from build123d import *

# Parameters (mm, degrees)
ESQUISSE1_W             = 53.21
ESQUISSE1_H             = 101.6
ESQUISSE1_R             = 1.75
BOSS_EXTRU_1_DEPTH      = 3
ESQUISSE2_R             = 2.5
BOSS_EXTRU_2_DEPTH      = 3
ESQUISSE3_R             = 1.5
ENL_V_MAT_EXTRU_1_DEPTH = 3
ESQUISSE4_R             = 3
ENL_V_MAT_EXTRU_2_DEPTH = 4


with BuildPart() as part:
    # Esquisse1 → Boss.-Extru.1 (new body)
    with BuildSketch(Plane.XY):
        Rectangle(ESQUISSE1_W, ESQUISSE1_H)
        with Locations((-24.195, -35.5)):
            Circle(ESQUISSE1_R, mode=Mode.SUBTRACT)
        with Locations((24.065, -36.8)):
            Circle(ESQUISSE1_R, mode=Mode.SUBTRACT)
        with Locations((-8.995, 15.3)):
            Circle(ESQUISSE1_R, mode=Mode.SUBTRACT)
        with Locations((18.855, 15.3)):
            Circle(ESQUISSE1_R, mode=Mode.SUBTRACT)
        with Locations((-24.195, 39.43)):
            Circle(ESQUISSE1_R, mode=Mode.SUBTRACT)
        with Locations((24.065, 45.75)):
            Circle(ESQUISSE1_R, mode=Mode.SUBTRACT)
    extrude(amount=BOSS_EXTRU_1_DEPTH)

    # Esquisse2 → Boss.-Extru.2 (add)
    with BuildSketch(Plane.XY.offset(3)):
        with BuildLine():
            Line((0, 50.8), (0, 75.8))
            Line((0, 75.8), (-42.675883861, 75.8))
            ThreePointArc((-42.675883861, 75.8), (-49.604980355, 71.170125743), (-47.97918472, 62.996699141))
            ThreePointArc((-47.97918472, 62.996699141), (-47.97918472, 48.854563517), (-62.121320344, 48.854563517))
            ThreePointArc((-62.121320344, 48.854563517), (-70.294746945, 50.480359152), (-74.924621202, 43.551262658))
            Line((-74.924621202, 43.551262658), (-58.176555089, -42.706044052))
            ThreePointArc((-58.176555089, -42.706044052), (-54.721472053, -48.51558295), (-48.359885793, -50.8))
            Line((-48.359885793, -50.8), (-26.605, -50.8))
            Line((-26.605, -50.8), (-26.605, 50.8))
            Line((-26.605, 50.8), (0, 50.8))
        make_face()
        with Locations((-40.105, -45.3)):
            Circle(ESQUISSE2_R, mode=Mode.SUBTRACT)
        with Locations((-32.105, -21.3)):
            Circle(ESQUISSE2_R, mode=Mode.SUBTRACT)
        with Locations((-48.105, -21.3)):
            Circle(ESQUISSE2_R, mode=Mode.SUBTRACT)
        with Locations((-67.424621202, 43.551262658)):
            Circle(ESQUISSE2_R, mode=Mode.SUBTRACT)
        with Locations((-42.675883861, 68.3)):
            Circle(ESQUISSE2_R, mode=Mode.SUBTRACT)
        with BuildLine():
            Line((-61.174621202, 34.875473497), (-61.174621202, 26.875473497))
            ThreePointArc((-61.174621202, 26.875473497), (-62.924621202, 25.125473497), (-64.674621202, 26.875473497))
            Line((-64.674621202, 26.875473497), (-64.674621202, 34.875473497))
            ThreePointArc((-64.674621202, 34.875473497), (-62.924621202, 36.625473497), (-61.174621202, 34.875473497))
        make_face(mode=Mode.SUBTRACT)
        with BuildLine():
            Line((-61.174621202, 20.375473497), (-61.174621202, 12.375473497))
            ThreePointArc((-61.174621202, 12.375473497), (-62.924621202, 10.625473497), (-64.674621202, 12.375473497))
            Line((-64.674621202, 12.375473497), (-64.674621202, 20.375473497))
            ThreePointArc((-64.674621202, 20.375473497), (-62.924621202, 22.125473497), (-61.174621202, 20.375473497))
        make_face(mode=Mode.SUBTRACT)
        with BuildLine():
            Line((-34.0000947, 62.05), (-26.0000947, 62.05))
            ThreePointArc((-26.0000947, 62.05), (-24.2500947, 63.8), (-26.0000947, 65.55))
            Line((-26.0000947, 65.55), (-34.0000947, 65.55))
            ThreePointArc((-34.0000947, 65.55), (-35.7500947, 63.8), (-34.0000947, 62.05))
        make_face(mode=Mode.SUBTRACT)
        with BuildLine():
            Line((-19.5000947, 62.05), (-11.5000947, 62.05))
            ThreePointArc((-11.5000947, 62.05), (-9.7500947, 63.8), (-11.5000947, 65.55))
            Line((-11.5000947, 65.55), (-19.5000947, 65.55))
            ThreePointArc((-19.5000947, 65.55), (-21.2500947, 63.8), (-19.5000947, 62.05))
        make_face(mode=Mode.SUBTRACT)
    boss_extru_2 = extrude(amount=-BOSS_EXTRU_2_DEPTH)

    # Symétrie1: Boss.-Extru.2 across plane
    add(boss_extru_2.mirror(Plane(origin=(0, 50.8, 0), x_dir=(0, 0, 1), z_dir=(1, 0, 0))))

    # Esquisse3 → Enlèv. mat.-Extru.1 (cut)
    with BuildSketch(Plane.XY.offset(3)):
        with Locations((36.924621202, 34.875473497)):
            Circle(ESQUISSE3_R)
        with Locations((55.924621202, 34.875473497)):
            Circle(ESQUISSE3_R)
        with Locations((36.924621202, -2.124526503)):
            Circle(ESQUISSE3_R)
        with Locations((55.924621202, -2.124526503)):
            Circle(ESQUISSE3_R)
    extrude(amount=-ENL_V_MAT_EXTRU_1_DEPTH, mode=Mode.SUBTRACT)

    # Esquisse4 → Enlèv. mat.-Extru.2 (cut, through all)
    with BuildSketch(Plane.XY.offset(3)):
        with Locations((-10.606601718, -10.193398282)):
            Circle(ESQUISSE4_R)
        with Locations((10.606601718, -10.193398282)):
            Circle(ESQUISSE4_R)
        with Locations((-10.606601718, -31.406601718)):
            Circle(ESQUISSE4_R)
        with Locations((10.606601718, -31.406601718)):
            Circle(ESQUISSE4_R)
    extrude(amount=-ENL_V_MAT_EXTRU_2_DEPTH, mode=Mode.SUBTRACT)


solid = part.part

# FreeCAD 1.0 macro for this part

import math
import FreeCAD as App
import Part
import Sketcher
Q = App.Units.Quantity

doc = App.newDocument("Part")
body = doc.addObject("PartDesign::Body", "Body")

# Sketch on XY plane
sketch1 = body.newObject("Sketcher::SketchObject", "Sketch")
sketch1.AttachmentSupport = (doc.getObject("XY_Plane"), [""])
sketch1.MapMode = "FlatFace"
sketch1.addGeometry(Part.LineSegment(App.Vector(-26.6, 50.8, 0), App.Vector(-26.6, -50.8, 0)), False)
sketch1.addGeometry(Part.LineSegment(App.Vector(-26.6, -50.8, 0), App.Vector(26.6, -50.8, 0)), False)
sketch1.addGeometry(Part.LineSegment(App.Vector(26.6, -50.8, 0), App.Vector(26.6, 50.8, 0)), False)
sketch1.addGeometry(Part.LineSegment(App.Vector(26.6, 50.8, 0), App.Vector(-26.6, 50.8, 0)), False)
sketch1.addGeometry(Part.Circle(App.Vector(-24.2, -35.5, 0), App.Vector(0, 0, 1), 1.8), False)
sketch1.addGeometry(Part.Circle(App.Vector(24.1, -36.8, 0), App.Vector(0, 0, 1), 1.8), False)
sketch1.addGeometry(Part.Circle(App.Vector(-9, 15.3, 0), App.Vector(0, 0, 1), 1.8), False)
sketch1.addGeometry(Part.Circle(App.Vector(-24.2, 39.4, 0), App.Vector(0, 0, 1), 1.8), False)
sketch1.addGeometry(Part.Circle(App.Vector(18.9, 15.3, 0), App.Vector(0, 0, 1), 1.8), False)
sketch1.addGeometry(Part.Circle(App.Vector(24.1, 45.8, 0), App.Vector(0, 0, 1), 1.8), False)
sketch1.addConstraint(Sketcher.Constraint("Coincident", 0, 2, 1, 1))
sketch1.addConstraint(Sketcher.Constraint("Coincident", 1, 2, 2, 1))
sketch1.addConstraint(Sketcher.Constraint("Coincident", 2, 2, 3, 1))
sketch1.addConstraint(Sketcher.Constraint("Coincident", 3, 2, 0, 1))
sketch1.addConstraint(Sketcher.Constraint("Vertical", 0))
sketch1.addConstraint(Sketcher.Constraint("Horizontal", 1))
sketch1.addConstraint(Sketcher.Constraint("Vertical", 2))
sketch1.addConstraint(Sketcher.Constraint("Horizontal", 3))
sketch1.addConstraint(Sketcher.Constraint("Equal", 4, 5))
sketch1.addConstraint(Sketcher.Constraint("Equal", 5, 6))
sketch1.addConstraint(Sketcher.Constraint("Equal", 6, 7))
sketch1.addConstraint(Sketcher.Constraint("Equal", 7, 8))
sketch1.addConstraint(Sketcher.Constraint("Equal", 8, 9))
sketch1.addConstraint(Sketcher.Constraint("Symmetric", 0, 2, 2, 2, -1, 1))
sketch1.addConstraint(Sketcher.Constraint("Horizontal", 6, 3, 8, 3))
sketch1.addConstraint(Sketcher.Constraint("Vertical", 4, 3, 7, 3))
sketch1.addConstraint(Sketcher.Constraint("Vertical", 5, 3, 9, 3))
sketch1.addConstraint(Sketcher.Constraint("Diameter", 4, Q("3.5 mm")))
sketch1.addConstraint(Sketcher.Constraint("DistanceY", 0, 2, 0, 1, Q("101.6 mm")))
sketch1.addConstraint(Sketcher.Constraint("DistanceY", 0, 2, 5, 3, Q("14 mm")))
sketch1.addConstraint(Sketcher.Constraint("DistanceX", 1, 1, 1, 2, Q("53.21 mm")))
sketch1.addConstraint(Sketcher.Constraint("DistanceY", 4, 3, -1, 1, Q("35.5 mm")))
sketch1.addConstraint(Sketcher.Constraint("DistanceY", -1, 1, 6, 3, Q("15.3 mm")))
sketch1.addConstraint(Sketcher.Constraint("DistanceX", 4, 3, 6, 3, Q("15.2 mm")))
sketch1.addConstraint(Sketcher.Constraint("DistanceX", 4, 3, 1, 2, Q("50.8 mm")))
sketch1.addConstraint(Sketcher.Constraint("DistanceY", -1, 1, 7, 3, Q("39.43 mm")))
sketch1.addConstraint(Sketcher.Constraint("DistanceY", -1, 1, 9, 3, Q("45.75 mm")))
sketch1.addConstraint(Sketcher.Constraint("DistanceX", 4, 3, 5, 3, Q("48.26 mm")))
sketch1.addConstraint(Sketcher.Constraint("DistanceX", 6, 3, 8, 3, Q("27.85 mm")))
pad1 = body.newObject("PartDesign::Pad", "Pad")
pad1.Profile = sketch1
pad1.Length = 3

# Sketch on XY plane
sketch2 = body.newObject("Sketcher::SketchObject", "Sketch001")
sketch2.AttachmentSupport = (doc.getObject("XY_Plane"), [""])
sketch2.MapMode = "FlatFace"
sketch2.AttachmentOffset = App.Placement(App.Vector(0, 0, 3), App.Rotation())
sketch2.addGeometry(Part.LineSegment(App.Vector(0, 50.8, 0), App.Vector(0, 75.8, 0)), False)
sketch2.addGeometry(Part.LineSegment(App.Vector(0, 75.8, 0), App.Vector(-42.7, 75.8, 0)), False)
sketch2.addGeometry(Part.ArcOfCircle(Part.Circle(App.Vector(-42.7, 68.3, 0), App.Vector(0, 0, 1), 7.5), math.radians(90), math.radians(225)), False)
sketch2.addGeometry(Part.ArcOfCircle(Part.Circle(App.Vector(-55.1, 55.9, 0), App.Vector(0, 0, 1), 10), math.radians(-135), math.radians(45)), False)
sketch2.addGeometry(Part.ArcOfCircle(Part.Circle(App.Vector(-67.4, 43.6, 0), App.Vector(0, 0, 1), 7.5), math.radians(45), math.radians(180)), False)
sketch2.addGeometry(Part.LineSegment(App.Vector(-74.9, 43.6, 0), App.Vector(-58.2, -42.7, 0)), False)
sketch2.addGeometry(Part.ArcOfCircle(Part.Circle(App.Vector(-48.4, -40.8, 0), App.Vector(0, 0, 1), 10), math.radians(-169), math.radians(-90)), False)
sketch2.addGeometry(Part.LineSegment(App.Vector(-48.4, -50.8, 0), App.Vector(-26.6, -50.8, 0)), False)
sketch2.addGeometry(Part.LineSegment(App.Vector(-26.6, -50.8, 0), App.Vector(-26.6, 50.8, 0)), False)
sketch2.addGeometry(Part.LineSegment(App.Vector(-26.6, 50.8, 0), App.Vector(0, 50.8, 0)), False)
sketch2.addGeometry(Part.Circle(App.Vector(-40.1, -45.3, 0), App.Vector(0, 0, 1), 2.5), False)
sketch2.addGeometry(Part.Circle(App.Vector(-48.1, -21.3, 0), App.Vector(0, 0, 1), 2.5), False)
sketch2.addGeometry(Part.Circle(App.Vector(-32.1, -21.3, 0), App.Vector(0, 0, 1), 2.5), False)
sketch2.addGeometry(Part.ArcOfCircle(Part.Circle(App.Vector(-62.9, 20.4, 0), App.Vector(0, 0, 1), 1.8), math.radians(0), math.radians(180)), False)
sketch2.addGeometry(Part.LineSegment(App.Vector(-61.2, 20.4, 0), App.Vector(-61.2, 12.4, 0)), False)
sketch2.addGeometry(Part.ArcOfCircle(Part.Circle(App.Vector(-62.9, 12.4, 0), App.Vector(0, 0, 1), 1.8), math.radians(180), math.radians(360)), False)
sketch2.addGeometry(Part.LineSegment(App.Vector(-64.7, 12.4, 0), App.Vector(-64.7, 20.4, 0)), False)
sketch2.addGeometry(Part.ArcOfCircle(Part.Circle(App.Vector(-62.9, 34.9, 0), App.Vector(0, 0, 1), 1.8), math.radians(0), math.radians(180)), False)
sketch2.addGeometry(Part.LineSegment(App.Vector(-61.2, 34.9, 0), App.Vector(-61.2, 26.9, 0)), False)
sketch2.addGeometry(Part.ArcOfCircle(Part.Circle(App.Vector(-62.9, 26.9, 0), App.Vector(0, 0, 1), 1.8), math.radians(180), math.radians(360)), False)
sketch2.addGeometry(Part.LineSegment(App.Vector(-64.7, 26.9, 0), App.Vector(-64.7, 34.9, 0)), False)
sketch2.addGeometry(Part.Circle(App.Vector(-67.4, 43.6, 0), App.Vector(0, 0, 1), 2.5), False)
sketch2.addGeometry(Part.Circle(App.Vector(-42.7, 68.3, 0), App.Vector(0, 0, 1), 2.5), False)
sketch2.addGeometry(Part.LineSegment(App.Vector(-26, 62, 0), App.Vector(-34, 62, 0)), False)
sketch2.addGeometry(Part.ArcOfCircle(Part.Circle(App.Vector(-34, 63.8, 0), App.Vector(0, 0, 1), 1.8), math.radians(90), math.radians(270)), False)
sketch2.addGeometry(Part.LineSegment(App.Vector(-34, 65.5, 0), App.Vector(-26, 65.5, 0)), False)
sketch2.addGeometry(Part.ArcOfCircle(Part.Circle(App.Vector(-26, 63.8, 0), App.Vector(0, 0, 1), 1.8), math.radians(-90), math.radians(90)), False)
sketch2.addGeometry(Part.LineSegment(App.Vector(-11.5, 62, 0), App.Vector(-19.5, 62, 0)), False)
sketch2.addGeometry(Part.ArcOfCircle(Part.Circle(App.Vector(-19.5, 63.8, 0), App.Vector(0, 0, 1), 1.8), math.radians(90), math.radians(270)), False)
sketch2.addGeometry(Part.LineSegment(App.Vector(-19.5, 65.5, 0), App.Vector(-11.5, 65.5, 0)), False)
sketch2.addGeometry(Part.ArcOfCircle(Part.Circle(App.Vector(-11.5, 63.8, 0), App.Vector(0, 0, 1), 1.8), math.radians(-90), math.radians(90)), False)
sketch2.addConstraint(Sketcher.Constraint("Coincident", 0, 2, 1, 1))
sketch2.addConstraint(Sketcher.Constraint("Tangent", 1, 2, 2, 1))
sketch2.addConstraint(Sketcher.Constraint("Tangent", 2, 2, 3, 2))
sketch2.addConstraint(Sketcher.Constraint("Tangent", 3, 1, 4, 1))
sketch2.addConstraint(Sketcher.Constraint("Coincident", 4, 2, 5, 1))
sketch2.addConstraint(Sketcher.Constraint("Tangent", 5, 2, 6, 1))
sketch2.addConstraint(Sketcher.Constraint("Tangent", 6, 2, 7, 1))
sketch2.addConstraint(Sketcher.Constraint("Coincident", 7, 2, 8, 1))
sketch2.addConstraint(Sketcher.Constraint("Coincident", 8, 2, 9, 1))
sketch2.addConstraint(Sketcher.Constraint("Coincident", 9, 2, 0, 1))
sketch2.addConstraint(Sketcher.Constraint("Tangent", 13, 1, 14, 1))
sketch2.addConstraint(Sketcher.Constraint("Tangent", 14, 2, 15, 2))
sketch2.addConstraint(Sketcher.Constraint("Tangent", 15, 1, 16, 1))
sketch2.addConstraint(Sketcher.Constraint("Tangent", 16, 2, 13, 2))
sketch2.addConstraint(Sketcher.Constraint("Tangent", 17, 1, 18, 1))
sketch2.addConstraint(Sketcher.Constraint("Tangent", 18, 2, 19, 2))
sketch2.addConstraint(Sketcher.Constraint("Tangent", 19, 1, 20, 1))
sketch2.addConstraint(Sketcher.Constraint("Tangent", 20, 2, 17, 2))
sketch2.addConstraint(Sketcher.Constraint("Tangent", 23, 2, 24, 2))
sketch2.addConstraint(Sketcher.Constraint("Tangent", 24, 1, 25, 1))
sketch2.addConstraint(Sketcher.Constraint("Tangent", 25, 2, 26, 2))
sketch2.addConstraint(Sketcher.Constraint("Tangent", 26, 1, 23, 1))
sketch2.addConstraint(Sketcher.Constraint("Tangent", 27, 2, 28, 2))
sketch2.addConstraint(Sketcher.Constraint("Tangent", 28, 1, 29, 1))
sketch2.addConstraint(Sketcher.Constraint("Tangent", 29, 2, 30, 2))
sketch2.addConstraint(Sketcher.Constraint("Tangent", 30, 1, 27, 1))
sketch2.addConstraint(Sketcher.Constraint("Vertical", 0))
sketch2.addConstraint(Sketcher.Constraint("Horizontal", 1))
sketch2.addConstraint(Sketcher.Constraint("Horizontal", 7))
sketch2.addConstraint(Sketcher.Constraint("Vertical", 8))
sketch2.addConstraint(Sketcher.Constraint("Horizontal", 9))
sketch2.addConstraint(Sketcher.Constraint("Vertical", 14))
sketch2.addConstraint(Sketcher.Constraint("Vertical", 16))
sketch2.addConstraint(Sketcher.Constraint("Vertical", 18))
sketch2.addConstraint(Sketcher.Constraint("Vertical", 20))
sketch2.addConstraint(Sketcher.Constraint("Horizontal", 23))
sketch2.addConstraint(Sketcher.Constraint("Horizontal", 25))
sketch2.addConstraint(Sketcher.Constraint("Horizontal", 27))
sketch2.addConstraint(Sketcher.Constraint("Horizontal", 29))
sketch2.addConstraint(Sketcher.Constraint("Coincident", 21, 3, 4, 3))
sketch2.addConstraint(Sketcher.Constraint("Coincident", 22, 3, 2, 3))
sketch2.addConstraint(Sketcher.Constraint("Equal", 2, 4))
sketch2.addConstraint(Sketcher.Constraint("Equal", 3, 6))
sketch2.addConstraint(Sketcher.Constraint("Equal", 10, 11))
sketch2.addConstraint(Sketcher.Constraint("Equal", 11, 12))
sketch2.addConstraint(Sketcher.Constraint("Equal", 15, 17))
sketch2.addConstraint(Sketcher.Constraint("Equal", 12, 21))
sketch2.addConstraint(Sketcher.Constraint("Equal", 21, 22))
sketch2.addConstraint(Sketcher.Constraint("Equal", 19, 24))
sketch2.addConstraint(Sketcher.Constraint("Equal", 26, 28))
sketch2.addConstraint(Sketcher.Constraint("PointOnObject", 0, 2, -2))
sketch2.addConstraint(Sketcher.Constraint("Horizontal", 11, 3, 12, 3))
sketch2.addConstraint(Sketcher.Constraint("Horizontal", 26, 3, 28, 3))
sketch2.addConstraint(Sketcher.Constraint("Horizontal", 21, 3, 4, 2))
sketch2.addConstraint(Sketcher.Constraint("Vertical", 15, 3, 17, 3))
sketch2.addConstraint(Sketcher.Constraint("Equal", 25, 27))
sketch2.addConstraint(Sketcher.Constraint("Equal", 29, 14))
sketch2.addConstraint(Sketcher.Constraint("Equal", 16, 18))
sketch2.addConstraint(Sketcher.Constraint("Diameter", 10, Q("5 mm")))
sketch2.addConstraint(Sketcher.Constraint("Radius", 3, Q("10 mm")))
sketch2.addConstraint(Sketcher.Constraint("Radius", 2, Q("7.5 mm")))
sketch2.addConstraint(Sketcher.Constraint("DistanceX", 23, 2, 23, 1, Q("8 mm")))
sketch2.addConstraint(Sketcher.Constraint("DistanceY", 0, 1, 0, 2, Q("25 mm")))
sketch2.addConstraint(Sketcher.Constraint("Radius", 13, Q("1.75 mm")))
sketch2.addConstraint(Sketcher.Constraint("DistanceY", 8, 1, 8, 2, Q("101.6 mm")))
sketch2.addConstraint(Sketcher.Constraint("DistanceX", 11, 3, 10, 3, Q("8 mm")))
sketch2.addConstraint(Sketcher.Constraint("DistanceY", 10, 3, 11, 3, Q("24 mm")))
sketch2.addConstraint(Sketcher.Constraint("DistanceX", 11, 3, 12, 3, Q("16 mm")))
sketch2.addConstraint(Sketcher.Constraint("DistanceY", 30, 3, 0, 2, Q("12 mm")))
sketch2.addConstraint(Sketcher.Constraint("DistanceX", 4, 2, 17, 3, Q("12 mm")))
sketch2.addConstraint(Sketcher.Constraint("DistanceY", -1, 1, 2, 3, Q("68.3 mm")))
sketch2.addConstraint(Sketcher.Constraint("DistanceY", 10, 3, -1, 1, Q("45.3 mm")))
sketch2.addConstraint(Sketcher.Constraint("DistanceY", 13, 3, 17, 3, Q("14.5 mm")))
sketch2.addConstraint(Sketcher.Constraint("DistanceX", 26, 3, 28, 3, Q("6.5 mm")))
sketch2.addConstraint(Sketcher.Constraint("DistanceX", 10, 3, 7, 2, Q("13.5 mm")))
sketch2.addConstraint(Sketcher.Constraint("DistanceX", 9, 1, 9, 2, Q("26.605 mm")))
sketch2.addConstraint(Sketcher.Constraint("DistanceX", 6, 3, 2, 3, Q("5.684002 mm")))
sketch2.addConstraint(Sketcher.Constraint("Distance", 5, Q("87.868201 mm")))
sketch2.addConstraint(Sketcher.Constraint("DistanceY", -1, 1, 2, 2, Q("62.996699 mm")))
sketch2.addConstraint(Sketcher.Constraint("DistanceX", 1, 2, 1, 1, Q("42.675884 mm")))
sketch2.addConstraint(Sketcher.Constraint("DistanceY", 13, 3, 4, 3, Q("23.175789 mm")))
sketch2.addConstraint(Sketcher.Constraint("DistanceX", 2, 3, 24, 3, Q("8.675789 mm")))
pad2 = body.newObject("PartDesign::Pad", "Pad001")
pad2.Profile = sketch2
pad2.Length = 3
pad2.Reversed = True
doc.recompute()

mirrored = body.newObject("PartDesign::Mirrored", "Mirrored")
mirrored.Originals = [pad2]
mirrored.MirrorPlane = (doc.getObject("YZ_Plane"), [""])
body.Tip = mirrored

# Sketch on XY plane
sketch3 = body.newObject("Sketcher::SketchObject", "Sketch002")
sketch3.AttachmentSupport = (doc.getObject("XY_Plane"), [""])
sketch3.MapMode = "FlatFace"
sketch3.AttachmentOffset = App.Placement(App.Vector(0, 0, 3), App.Rotation())
sketch3.addGeometry(Part.Circle(App.Vector(36.9, 34.9, 0), App.Vector(0, 0, 1), 1.5), False)
sketch3.addGeometry(Part.Circle(App.Vector(55.9, 34.9, 0), App.Vector(0, 0, 1), 1.5), False)
sketch3.addGeometry(Part.Circle(App.Vector(36.9, -2.1, 0), App.Vector(0, 0, 1), 1.5), False)
sketch3.addGeometry(Part.Circle(App.Vector(55.9, -2.1, 0), App.Vector(0, 0, 1), 1.5), False)
sketch3.addConstraint(Sketcher.Constraint("Equal", 0, 1))
sketch3.addConstraint(Sketcher.Constraint("Equal", 1, 2))
sketch3.addConstraint(Sketcher.Constraint("Equal", 2, 3))
sketch3.addConstraint(Sketcher.Constraint("Horizontal", 0, 3, 1, 3))
sketch3.addConstraint(Sketcher.Constraint("Horizontal", 2, 3, 3, 3))
sketch3.addConstraint(Sketcher.Constraint("Vertical", 0, 3, 2, 3))
sketch3.addConstraint(Sketcher.Constraint("Vertical", 1, 3, 3, 3))
sketch3.addConstraint(Sketcher.Constraint("Diameter", 0, Q("3 mm")))
sketch3.addConstraint(Sketcher.Constraint("DistanceX", 0, 3, 1, 3, Q("19 mm")))
sketch3.addConstraint(Sketcher.Constraint("DistanceY", 2, 3, 0, 3, Q("37 mm")))
sketch3.addConstraint(Sketcher.Constraint("DistanceX", -1, 1, 0, 3, Q("36.924621 mm")))
sketch3.addConstraint(Sketcher.Constraint("DistanceY", -1, 1, 0, 3, Q("34.875473 mm")))
pocket1 = body.newObject("PartDesign::Pocket", "Pocket")
pocket1.Profile = sketch3
pocket1.Length = 3

# Sketch on XY plane
sketch4 = body.newObject("Sketcher::SketchObject", "Sketch003")
sketch4.AttachmentSupport = (doc.getObject("XY_Plane"), [""])
sketch4.MapMode = "FlatFace"
sketch4.AttachmentOffset = App.Placement(App.Vector(0, 0, 3), App.Rotation())
sketch4.addGeometry(Part.Circle(App.Vector(-10.6, -10.2, 0), App.Vector(0, 0, 1), 3), False)
sketch4.addGeometry(Part.Circle(App.Vector(10.6, -10.2, 0), App.Vector(0, 0, 1), 3), False)
sketch4.addGeometry(Part.Circle(App.Vector(-10.6, -31.4, 0), App.Vector(0, 0, 1), 3), False)
sketch4.addGeometry(Part.Circle(App.Vector(10.6, -31.4, 0), App.Vector(0, 0, 1), 3), False)
sketch4.addConstraint(Sketcher.Constraint("Equal", 0, 1))
sketch4.addConstraint(Sketcher.Constraint("Equal", 1, 2))
sketch4.addConstraint(Sketcher.Constraint("Equal", 2, 3))
sketch4.addConstraint(Sketcher.Constraint("Symmetric", 0, 3, 1, 3, -2))
sketch4.addConstraint(Sketcher.Constraint("Symmetric", 2, 3, 3, 3, -2))
sketch4.addConstraint(Sketcher.Constraint("Vertical", 0, 3, 2, 3))
sketch4.addConstraint(Sketcher.Constraint("Diameter", 0, Q("6 mm")))
sketch4.addConstraint(Sketcher.Constraint("DistanceX", 0, 3, -1, 1, Q("10.606602 mm")))
sketch4.addConstraint(Sketcher.Constraint("DistanceY", 0, 3, -1, 1, Q("10.193398 mm")))
sketch4.addConstraint(Sketcher.Constraint("DistanceY", 2, 3, -1, 1, Q("31.406602 mm")))
pocket2 = body.newObject("PartDesign::Pocket", "Pocket001")
pocket2.Profile = sketch4
pocket2.Type = "ThroughAll"

doc.recompute()
